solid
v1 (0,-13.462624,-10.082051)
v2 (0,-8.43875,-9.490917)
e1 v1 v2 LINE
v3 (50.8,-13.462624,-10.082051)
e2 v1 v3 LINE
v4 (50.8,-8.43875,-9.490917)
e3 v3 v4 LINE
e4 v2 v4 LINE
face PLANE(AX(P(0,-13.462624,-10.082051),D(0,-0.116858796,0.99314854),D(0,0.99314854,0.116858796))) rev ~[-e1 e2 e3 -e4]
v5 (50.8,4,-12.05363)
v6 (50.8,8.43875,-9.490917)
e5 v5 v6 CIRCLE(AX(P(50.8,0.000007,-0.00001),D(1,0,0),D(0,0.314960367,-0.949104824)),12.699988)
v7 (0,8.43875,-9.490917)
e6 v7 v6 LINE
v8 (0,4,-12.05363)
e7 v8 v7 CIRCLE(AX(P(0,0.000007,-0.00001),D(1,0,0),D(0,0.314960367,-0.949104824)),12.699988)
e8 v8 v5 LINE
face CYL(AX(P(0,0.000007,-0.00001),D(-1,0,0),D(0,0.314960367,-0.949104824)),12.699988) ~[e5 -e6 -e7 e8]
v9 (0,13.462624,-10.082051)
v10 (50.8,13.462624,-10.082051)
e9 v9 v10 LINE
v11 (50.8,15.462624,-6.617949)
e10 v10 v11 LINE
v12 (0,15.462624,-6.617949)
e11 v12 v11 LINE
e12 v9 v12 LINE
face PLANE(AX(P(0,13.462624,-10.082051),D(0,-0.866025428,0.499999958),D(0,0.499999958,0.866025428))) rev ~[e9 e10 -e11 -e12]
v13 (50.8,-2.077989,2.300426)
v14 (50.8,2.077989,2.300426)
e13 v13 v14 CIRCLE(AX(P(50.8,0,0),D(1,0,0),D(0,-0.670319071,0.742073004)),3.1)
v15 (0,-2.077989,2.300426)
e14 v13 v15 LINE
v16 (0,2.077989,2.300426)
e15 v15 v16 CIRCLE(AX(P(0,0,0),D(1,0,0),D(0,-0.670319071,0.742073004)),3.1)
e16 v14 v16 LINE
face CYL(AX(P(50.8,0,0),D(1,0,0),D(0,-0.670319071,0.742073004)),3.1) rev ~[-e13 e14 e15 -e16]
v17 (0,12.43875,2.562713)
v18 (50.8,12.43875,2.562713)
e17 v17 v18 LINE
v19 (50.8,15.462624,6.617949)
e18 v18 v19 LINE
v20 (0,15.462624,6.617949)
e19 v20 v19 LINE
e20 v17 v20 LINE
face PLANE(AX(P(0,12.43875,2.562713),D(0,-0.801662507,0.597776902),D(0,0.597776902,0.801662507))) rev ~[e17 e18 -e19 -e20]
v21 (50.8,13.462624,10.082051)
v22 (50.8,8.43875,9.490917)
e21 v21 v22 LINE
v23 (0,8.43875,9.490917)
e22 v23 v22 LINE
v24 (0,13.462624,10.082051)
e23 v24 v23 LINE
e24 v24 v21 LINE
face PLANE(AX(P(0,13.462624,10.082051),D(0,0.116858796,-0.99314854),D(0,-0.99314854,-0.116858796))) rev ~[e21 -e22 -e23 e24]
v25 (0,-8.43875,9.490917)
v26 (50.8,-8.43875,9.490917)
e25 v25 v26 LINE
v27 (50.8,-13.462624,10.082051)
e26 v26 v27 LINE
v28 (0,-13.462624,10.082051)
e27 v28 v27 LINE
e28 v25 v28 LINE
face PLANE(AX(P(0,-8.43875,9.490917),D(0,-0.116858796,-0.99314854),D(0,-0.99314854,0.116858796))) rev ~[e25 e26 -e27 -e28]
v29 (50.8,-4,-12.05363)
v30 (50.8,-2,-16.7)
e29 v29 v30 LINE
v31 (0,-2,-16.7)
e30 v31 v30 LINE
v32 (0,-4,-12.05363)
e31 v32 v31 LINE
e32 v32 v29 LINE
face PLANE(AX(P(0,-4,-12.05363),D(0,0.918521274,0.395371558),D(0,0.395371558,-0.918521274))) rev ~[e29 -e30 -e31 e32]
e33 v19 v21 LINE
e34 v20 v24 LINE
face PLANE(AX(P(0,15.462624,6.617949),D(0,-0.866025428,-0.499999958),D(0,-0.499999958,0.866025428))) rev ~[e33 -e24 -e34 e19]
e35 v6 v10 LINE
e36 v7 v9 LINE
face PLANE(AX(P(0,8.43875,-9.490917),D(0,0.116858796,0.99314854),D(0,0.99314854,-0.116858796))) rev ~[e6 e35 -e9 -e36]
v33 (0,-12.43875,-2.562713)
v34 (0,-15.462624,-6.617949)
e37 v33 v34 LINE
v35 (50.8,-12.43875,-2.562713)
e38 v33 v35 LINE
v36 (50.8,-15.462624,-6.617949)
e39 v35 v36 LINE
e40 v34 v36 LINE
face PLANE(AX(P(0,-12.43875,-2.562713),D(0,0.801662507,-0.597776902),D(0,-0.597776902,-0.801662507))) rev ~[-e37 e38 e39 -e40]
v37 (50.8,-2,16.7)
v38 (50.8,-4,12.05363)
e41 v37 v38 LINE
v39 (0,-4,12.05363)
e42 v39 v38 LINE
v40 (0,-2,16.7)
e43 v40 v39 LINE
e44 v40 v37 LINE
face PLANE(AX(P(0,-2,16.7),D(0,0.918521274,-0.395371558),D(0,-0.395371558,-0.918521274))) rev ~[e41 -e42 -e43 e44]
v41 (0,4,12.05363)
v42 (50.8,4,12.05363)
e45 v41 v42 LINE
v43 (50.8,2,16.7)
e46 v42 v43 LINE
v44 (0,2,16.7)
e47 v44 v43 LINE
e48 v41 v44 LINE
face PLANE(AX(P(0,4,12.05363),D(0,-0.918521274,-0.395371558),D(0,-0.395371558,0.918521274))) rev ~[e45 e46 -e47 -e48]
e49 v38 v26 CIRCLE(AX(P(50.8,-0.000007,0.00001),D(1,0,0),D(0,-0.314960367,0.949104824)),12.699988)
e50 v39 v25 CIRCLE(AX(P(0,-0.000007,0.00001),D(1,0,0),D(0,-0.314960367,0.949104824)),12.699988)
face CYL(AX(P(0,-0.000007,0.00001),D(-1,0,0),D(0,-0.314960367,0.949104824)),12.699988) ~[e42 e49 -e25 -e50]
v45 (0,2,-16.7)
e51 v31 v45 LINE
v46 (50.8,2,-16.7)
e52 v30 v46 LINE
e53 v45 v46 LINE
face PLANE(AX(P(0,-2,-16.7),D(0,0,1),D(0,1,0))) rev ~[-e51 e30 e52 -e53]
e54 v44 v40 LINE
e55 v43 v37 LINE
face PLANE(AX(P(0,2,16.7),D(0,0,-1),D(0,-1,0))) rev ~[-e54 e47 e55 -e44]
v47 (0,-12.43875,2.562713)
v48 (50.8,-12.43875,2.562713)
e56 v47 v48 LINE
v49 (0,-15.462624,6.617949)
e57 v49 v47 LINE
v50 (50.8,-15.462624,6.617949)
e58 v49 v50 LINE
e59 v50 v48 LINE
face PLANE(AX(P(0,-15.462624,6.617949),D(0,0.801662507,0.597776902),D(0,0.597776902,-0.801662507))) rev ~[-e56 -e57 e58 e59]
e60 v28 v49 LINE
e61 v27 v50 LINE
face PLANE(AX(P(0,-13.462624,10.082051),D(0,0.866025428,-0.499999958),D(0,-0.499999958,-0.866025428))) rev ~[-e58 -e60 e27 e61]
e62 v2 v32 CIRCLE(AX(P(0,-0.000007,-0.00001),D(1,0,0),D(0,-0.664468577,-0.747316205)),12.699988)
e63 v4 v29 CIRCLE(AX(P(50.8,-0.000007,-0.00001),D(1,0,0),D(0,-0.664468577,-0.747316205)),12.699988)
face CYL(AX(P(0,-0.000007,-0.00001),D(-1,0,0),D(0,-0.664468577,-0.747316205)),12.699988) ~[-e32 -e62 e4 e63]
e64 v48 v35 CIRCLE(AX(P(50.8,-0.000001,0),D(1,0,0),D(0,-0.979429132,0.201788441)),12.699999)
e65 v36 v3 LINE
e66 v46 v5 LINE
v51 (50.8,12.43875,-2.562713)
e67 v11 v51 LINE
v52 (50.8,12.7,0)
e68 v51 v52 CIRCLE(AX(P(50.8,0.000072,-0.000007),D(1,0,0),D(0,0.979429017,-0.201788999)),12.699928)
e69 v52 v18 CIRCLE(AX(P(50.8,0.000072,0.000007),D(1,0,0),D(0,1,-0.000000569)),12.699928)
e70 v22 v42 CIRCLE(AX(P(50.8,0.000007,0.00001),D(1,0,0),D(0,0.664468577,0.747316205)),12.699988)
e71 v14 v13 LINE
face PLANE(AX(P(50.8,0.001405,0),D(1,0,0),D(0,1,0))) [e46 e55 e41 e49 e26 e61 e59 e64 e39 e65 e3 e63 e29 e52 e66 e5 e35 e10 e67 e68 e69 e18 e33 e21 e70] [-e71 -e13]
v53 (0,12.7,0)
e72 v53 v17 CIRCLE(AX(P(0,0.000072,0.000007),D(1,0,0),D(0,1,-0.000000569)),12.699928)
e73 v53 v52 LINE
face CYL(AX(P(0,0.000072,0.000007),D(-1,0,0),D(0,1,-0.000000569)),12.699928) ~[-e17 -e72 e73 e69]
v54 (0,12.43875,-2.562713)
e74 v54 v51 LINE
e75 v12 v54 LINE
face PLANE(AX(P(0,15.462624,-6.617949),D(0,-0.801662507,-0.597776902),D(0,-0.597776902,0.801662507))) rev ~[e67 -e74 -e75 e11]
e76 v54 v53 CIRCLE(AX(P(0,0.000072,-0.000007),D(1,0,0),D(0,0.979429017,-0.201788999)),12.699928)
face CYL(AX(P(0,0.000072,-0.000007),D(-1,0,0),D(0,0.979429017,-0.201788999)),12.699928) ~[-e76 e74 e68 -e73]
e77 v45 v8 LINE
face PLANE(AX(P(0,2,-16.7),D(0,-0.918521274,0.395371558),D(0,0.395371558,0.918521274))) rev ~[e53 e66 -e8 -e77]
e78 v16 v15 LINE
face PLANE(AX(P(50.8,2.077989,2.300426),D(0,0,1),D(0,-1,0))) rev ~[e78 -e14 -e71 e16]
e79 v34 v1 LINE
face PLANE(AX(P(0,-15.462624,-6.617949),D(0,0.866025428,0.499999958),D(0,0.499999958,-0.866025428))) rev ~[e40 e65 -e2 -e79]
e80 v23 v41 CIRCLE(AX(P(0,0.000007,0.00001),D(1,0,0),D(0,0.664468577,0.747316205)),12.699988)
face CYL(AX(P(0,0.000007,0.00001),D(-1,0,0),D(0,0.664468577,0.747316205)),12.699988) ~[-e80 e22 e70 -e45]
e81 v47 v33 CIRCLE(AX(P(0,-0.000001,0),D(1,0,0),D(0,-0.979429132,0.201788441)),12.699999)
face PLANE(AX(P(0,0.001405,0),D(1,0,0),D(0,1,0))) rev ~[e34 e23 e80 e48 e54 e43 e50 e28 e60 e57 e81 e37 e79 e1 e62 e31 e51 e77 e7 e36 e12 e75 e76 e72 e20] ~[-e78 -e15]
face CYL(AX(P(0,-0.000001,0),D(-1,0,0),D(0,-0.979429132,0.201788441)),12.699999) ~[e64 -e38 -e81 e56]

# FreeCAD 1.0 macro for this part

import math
import FreeCAD as App
import Part
import Sketcher
Q = App.Units.Quantity

doc = App.newDocument("Part")
body = doc.addObject("PartDesign::Body", "Body")

# Sketch on YZ plane
sketch1 = body.newObject("Sketcher::SketchObject", "Sketch")
sketch1.AttachmentSupport = (doc.getObject("YZ_Plane"), [""])
sketch1.MapMode = "FlatFace"
sketch1.addGeometry([
    Part.ArcOfCircle(Part.Circle(App.Vector(0.000072, -0.000007, 0), App.Vector(0, 0, 1), 12.699928), math.radians(-11.641594), math.radians(0.000033)),  # 0
    Part.ArcOfCircle(Part.Circle(App.Vector(0.000072, 0.000007, 0), App.Vector(0, 0, 1), 12.699928), math.radians(-0.000033), math.radians(11.641594)),  # 1
    Part.LineSegment(App.Vector(12.43875, 2.562713, 0), App.Vector(15.462624, 6.617949, 0)),  # 2
    Part.LineSegment(App.Vector(15.462624, 6.617949, 0), App.Vector(13.462624, 10.082051, 0)),  # 3
    Part.LineSegment(App.Vector(13.462624, 10.082051, 0), App.Vector(8.43875, 9.490917, 0)),  # 4
    Part.ArcOfCircle(Part.Circle(App.Vector(0.000007, 0.00001, 0), App.Vector(0, 0, 1), 12.699988), math.radians(48.358431), math.radians(71.641579)),  # 5
    Part.LineSegment(App.Vector(4, 12.05363, 0), App.Vector(2, 16.7, 0)),  # 6
    Part.LineSegment(App.Vector(2, 16.7, 0), App.Vector(-2, 16.7, 0)),  # 7
    Part.LineSegment(App.Vector(-2, 16.7, 0), App.Vector(-4, 12.05363, 0)),  # 8
    Part.ArcOfCircle(Part.Circle(App.Vector(-0.000007, 0.00001, 0), App.Vector(0, 0, 1), 12.699988), math.radians(108.358421), math.radians(131.641569)),  # 9
    Part.LineSegment(App.Vector(-8.43875, 9.490917, 0), App.Vector(-13.462624, 10.082051, 0)),  # 10
    Part.LineSegment(App.Vector(-13.462624, 10.082051, 0), App.Vector(-15.462624, 6.617949, 0)),  # 11
    Part.LineSegment(App.Vector(-15.462624, 6.617949, 0), App.Vector(-12.43875, 2.562713, 0)),  # 12
    Part.ArcOfCircle(Part.Circle(App.Vector(-0.000001, 0, 0), App.Vector(0, 0, 1), 12.699999), math.radians(168.358438), math.radians(191.641562)),  # 13
    Part.LineSegment(App.Vector(-12.43875, -2.562713, 0), App.Vector(-15.462624, -6.617949, 0)),  # 14
    Part.LineSegment(App.Vector(-15.462624, -6.617949, 0), App.Vector(-13.462624, -10.082051, 0)),  # 15
    Part.LineSegment(App.Vector(-13.462624, -10.082051, 0), App.Vector(-8.43875, -9.490917, 0)),  # 16
    Part.ArcOfCircle(Part.Circle(App.Vector(-0.000007, -0.00001, 0), App.Vector(0, 0, 1), 12.699988), math.radians(-131.641569), math.radians(-108.358421)),  # 17
    Part.LineSegment(App.Vector(-4, -12.05363, 0), App.Vector(-2, -16.7, 0)),  # 18
    Part.LineSegment(App.Vector(-2, -16.7, 0), App.Vector(2, -16.7, 0)),  # 19
    Part.LineSegment(App.Vector(2, -16.7, 0), App.Vector(4, -12.05363, 0)),  # 20
    Part.ArcOfCircle(Part.Circle(App.Vector(0.000007, -0.00001, 0), App.Vector(0, 0, 1), 12.699988), math.radians(-71.641579), math.radians(-48.358431)),  # 21
    Part.LineSegment(App.Vector(8.43875, -9.490917, 0), App.Vector(13.462624, -10.082051, 0)),  # 22
    Part.LineSegment(App.Vector(13.462624, -10.082051, 0), App.Vector(15.462624, -6.617949, 0)),  # 23
    Part.LineSegment(App.Vector(15.462624, -6.617949, 0), App.Vector(12.43875, -2.562713, 0)),  # 24
], False)
sketch1.addConstraint([
    Sketcher.Constraint("Coincident", 0, 2, 1, 1),
    Sketcher.Constraint("Coincident", 1, 2, 2, 1),
    Sketcher.Constraint("Coincident", 2, 2, 3, 1),
    Sketcher.Constraint("Coincident", 3, 2, 4, 1),
    Sketcher.Constraint("Coincident", 4, 2, 5, 1),
    Sketcher.Constraint("Coincident", 5, 2, 6, 1),
    Sketcher.Constraint("Coincident", 6, 2, 7, 1),
    Sketcher.Constraint("Coincident", 7, 2, 8, 1),
    Sketcher.Constraint("Coincident", 8, 2, 9, 1),
    Sketcher.Constraint("Coincident", 9, 2, 10, 1),
    Sketcher.Constraint("Coincident", 10, 2, 11, 1),
    Sketcher.Constraint("Coincident", 11, 2, 12, 1),
    Sketcher.Constraint("Coincident", 12, 2, 13, 1),
    Sketcher.Constraint("Coincident", 13, 2, 14, 1),
    Sketcher.Constraint("Coincident", 14, 2, 15, 1),
    Sketcher.Constraint("Coincident", 15, 2, 16, 1),
    Sketcher.Constraint("Coincident", 16, 2, 17, 1),
    Sketcher.Constraint("Coincident", 17, 2, 18, 1),
    Sketcher.Constraint("Coincident", 18, 2, 19, 1),
    Sketcher.Constraint("Coincident", 19, 2, 20, 1),
    Sketcher.Constraint("Coincident", 20, 2, 21, 1),
    Sketcher.Constraint("Coincident", 21, 2, 22, 1),
    Sketcher.Constraint("Coincident", 22, 2, 23, 1),
    Sketcher.Constraint("Coincident", 23, 2, 24, 1),
    Sketcher.Constraint("Coincident", 24, 2, 0, 1),
    Sketcher.Constraint("Horizontal", 7),
    Sketcher.Constraint("Horizontal", 19),
    Sketcher.Constraint("Coincident", 13, 3, -1, 1),
    Sketcher.Constraint("PointOnObject", 0, 2, -1),
    Sketcher.Constraint("Radius", 13, Q("0.5 in")),
    Sketcher.Constraint("DistanceX", -1, 1, 0, 2, Q("0.5 in")),
    Sketcher.Constraint("Radius", 0, 12.699928),
    Sketcher.Constraint("Radius", 1, 12.699928),
    Sketcher.Constraint("DistanceX", 7, 2, 7, 1, 4.0),
    Sketcher.Constraint("DistanceX", 19, 1, 19, 2, 4.0),
    Sketcher.Constraint("Radius", 5, 12.699988),
    Sketcher.Constraint("Radius", 9, 12.699988),
    Sketcher.Constraint("Radius", 17, 12.699988),
    Sketcher.Constraint("Radius", 21, 12.699988),
    Sketcher.Constraint("Distance", 3, 4.0),
    Sketcher.Constraint("Distance", 11, 4.0),
    Sketcher.Constraint("Distance", 15, 4.0),
    Sketcher.Constraint("Distance", 23, 4.0),
    Sketcher.Constraint("DistanceX", -1, 1, 5, 2, 4.0),
    Sketcher.Constraint("DistanceX", -1, 1, 6, 2, 2.0),
    Sketcher.Constraint("DistanceY", -1, 1, 6, 2, 16.7),
    Sketcher.Constraint("DistanceX", 8, 2, -1, 1, 4.0),
    Sketcher.Constraint("DistanceX", 17, 2, -1, 1, 4.0),
    Sketcher.Constraint("DistanceX", 18, 2, -1, 1, 2.0),
    Sketcher.Constraint("DistanceY", 18, 2, -1, 1, 16.7),
    Sketcher.Constraint("DistanceX", -1, 1, 20, 2, 4.0),
    Sketcher.Constraint("DistanceX", 3, 2, 2, 2, 2.0),
    Sketcher.Constraint("DistanceX", 4, 2, 1, 2, 4.0),
    Sketcher.Constraint("DistanceX", 11, 2, 10, 2, 2.0),
    Sketcher.Constraint("DistanceX", 12, 2, 9, 2, 4.0),
    Sketcher.Constraint("DistanceX", 14, 2, 15, 2, 2.0),
    Sketcher.Constraint("DistanceX", 13, 2, 16, 2, 4.0),
    Sketcher.Constraint("DistanceX", 22, 2, 23, 2, 2.0),
    Sketcher.Constraint("DistanceX", 21, 2, 24, 2, 4.0),
    Sketcher.Constraint("DistanceX", -1, 1, 1, 2, 12.43875),
    Sketcher.Constraint("DistanceY", -1, 1, 2, 2, 6.617949),
    Sketcher.Constraint("DistanceY", -1, 1, 5, 2, 12.05363),
    Sketcher.Constraint("DistanceY", -1, 1, 8, 2, 12.05363),
    Sketcher.Constraint("DistanceX", 9, 2, -1, 1, 8.43875),
    Sketcher.Constraint("DistanceY", -1, 1, 10, 2, 10.082051),
    Sketcher.Constraint("DistanceX", 13, 2, -1, 1, 12.43875),
    Sketcher.Constraint("DistanceY", 14, 2, -1, 1, 6.617949),
    Sketcher.Constraint("DistanceY", 17, 2, -1, 1, 12.05363),
    Sketcher.Constraint("DistanceY", 20, 2, -1, 1, 12.05363),
    Sketcher.Constraint("DistanceX", -1, 1, 21, 2, 8.43875),
    Sketcher.Constraint("DistanceY", 22, 2, -1, 1, 10.082051),
    Sketcher.Constraint("DistanceY", 0, 3, 1, 2, 2.56272),
    Sketcher.Constraint("DistanceY", 1, 3, 2, 2, 6.617942),
    Sketcher.Constraint("DistanceY", 5, 3, 2, 2, 6.617939),
    Sketcher.Constraint("DistanceY", 9, 3, 7, 2, 16.69999),
    Sketcher.Constraint("DistanceY", 17, 3, 11, 2, 6.617959),
    Sketcher.Constraint("DistanceY", 17, 2, 21, 3, 12.05362),
    Sketcher.Constraint("Distance", 2, 5.058533),
    Sketcher.Constraint("Distance", 10, 5.058532),
    Sketcher.Constraint("Distance", 14, 5.058533),
    Sketcher.Constraint("Distance", 22, 5.058532),
])
pad1 = body.newObject("PartDesign::Pad", "Pad")
pad1.Profile = sketch1
pad1.Length = Q("2 in")

# Sketch on YZ plane
sketch2 = body.newObject("Sketcher::SketchObject", "Sketch001")
sketch2.AttachmentSupport = (doc.getObject("YZ_Plane"), [""])
sketch2.MapMode = "FlatFace"
sketch2.AttachmentOffset = App.Placement(App.Vector(0, 0, 2 * 25.4), App.Rotation())
sketch2.addGeometry([
    Part.LineSegment(App.Vector(2.1, 2.3, 0), App.Vector(-2.1, 2.3, 0)),
    Part.ArcOfCircle(Part.Circle(App.Vector(0, 0, 0), App.Vector(0, 0, 1), 3.1), math.radians(132), math.radians(408)),
], False)
sketch2.addConstraint([
    Sketcher.Constraint("Coincident", 0, 1, 1, 2),
    Sketcher.Constraint("Coincident", 1, 1, 0, 2),
    Sketcher.Constraint("Horizontal", 0),
    Sketcher.Constraint("Coincident", 1, 3, -1, 1),
    Sketcher.Constraint("Radius", 1, 3.1),
    Sketcher.Constraint("DistanceX", 0, 2, 0, 1, 4.155978),
])
pocket1 = body.newObject("PartDesign::Pocket", "Pocket")
pocket1.Profile = sketch2
pocket1.Length = Q("4 in")

doc.recompute()
